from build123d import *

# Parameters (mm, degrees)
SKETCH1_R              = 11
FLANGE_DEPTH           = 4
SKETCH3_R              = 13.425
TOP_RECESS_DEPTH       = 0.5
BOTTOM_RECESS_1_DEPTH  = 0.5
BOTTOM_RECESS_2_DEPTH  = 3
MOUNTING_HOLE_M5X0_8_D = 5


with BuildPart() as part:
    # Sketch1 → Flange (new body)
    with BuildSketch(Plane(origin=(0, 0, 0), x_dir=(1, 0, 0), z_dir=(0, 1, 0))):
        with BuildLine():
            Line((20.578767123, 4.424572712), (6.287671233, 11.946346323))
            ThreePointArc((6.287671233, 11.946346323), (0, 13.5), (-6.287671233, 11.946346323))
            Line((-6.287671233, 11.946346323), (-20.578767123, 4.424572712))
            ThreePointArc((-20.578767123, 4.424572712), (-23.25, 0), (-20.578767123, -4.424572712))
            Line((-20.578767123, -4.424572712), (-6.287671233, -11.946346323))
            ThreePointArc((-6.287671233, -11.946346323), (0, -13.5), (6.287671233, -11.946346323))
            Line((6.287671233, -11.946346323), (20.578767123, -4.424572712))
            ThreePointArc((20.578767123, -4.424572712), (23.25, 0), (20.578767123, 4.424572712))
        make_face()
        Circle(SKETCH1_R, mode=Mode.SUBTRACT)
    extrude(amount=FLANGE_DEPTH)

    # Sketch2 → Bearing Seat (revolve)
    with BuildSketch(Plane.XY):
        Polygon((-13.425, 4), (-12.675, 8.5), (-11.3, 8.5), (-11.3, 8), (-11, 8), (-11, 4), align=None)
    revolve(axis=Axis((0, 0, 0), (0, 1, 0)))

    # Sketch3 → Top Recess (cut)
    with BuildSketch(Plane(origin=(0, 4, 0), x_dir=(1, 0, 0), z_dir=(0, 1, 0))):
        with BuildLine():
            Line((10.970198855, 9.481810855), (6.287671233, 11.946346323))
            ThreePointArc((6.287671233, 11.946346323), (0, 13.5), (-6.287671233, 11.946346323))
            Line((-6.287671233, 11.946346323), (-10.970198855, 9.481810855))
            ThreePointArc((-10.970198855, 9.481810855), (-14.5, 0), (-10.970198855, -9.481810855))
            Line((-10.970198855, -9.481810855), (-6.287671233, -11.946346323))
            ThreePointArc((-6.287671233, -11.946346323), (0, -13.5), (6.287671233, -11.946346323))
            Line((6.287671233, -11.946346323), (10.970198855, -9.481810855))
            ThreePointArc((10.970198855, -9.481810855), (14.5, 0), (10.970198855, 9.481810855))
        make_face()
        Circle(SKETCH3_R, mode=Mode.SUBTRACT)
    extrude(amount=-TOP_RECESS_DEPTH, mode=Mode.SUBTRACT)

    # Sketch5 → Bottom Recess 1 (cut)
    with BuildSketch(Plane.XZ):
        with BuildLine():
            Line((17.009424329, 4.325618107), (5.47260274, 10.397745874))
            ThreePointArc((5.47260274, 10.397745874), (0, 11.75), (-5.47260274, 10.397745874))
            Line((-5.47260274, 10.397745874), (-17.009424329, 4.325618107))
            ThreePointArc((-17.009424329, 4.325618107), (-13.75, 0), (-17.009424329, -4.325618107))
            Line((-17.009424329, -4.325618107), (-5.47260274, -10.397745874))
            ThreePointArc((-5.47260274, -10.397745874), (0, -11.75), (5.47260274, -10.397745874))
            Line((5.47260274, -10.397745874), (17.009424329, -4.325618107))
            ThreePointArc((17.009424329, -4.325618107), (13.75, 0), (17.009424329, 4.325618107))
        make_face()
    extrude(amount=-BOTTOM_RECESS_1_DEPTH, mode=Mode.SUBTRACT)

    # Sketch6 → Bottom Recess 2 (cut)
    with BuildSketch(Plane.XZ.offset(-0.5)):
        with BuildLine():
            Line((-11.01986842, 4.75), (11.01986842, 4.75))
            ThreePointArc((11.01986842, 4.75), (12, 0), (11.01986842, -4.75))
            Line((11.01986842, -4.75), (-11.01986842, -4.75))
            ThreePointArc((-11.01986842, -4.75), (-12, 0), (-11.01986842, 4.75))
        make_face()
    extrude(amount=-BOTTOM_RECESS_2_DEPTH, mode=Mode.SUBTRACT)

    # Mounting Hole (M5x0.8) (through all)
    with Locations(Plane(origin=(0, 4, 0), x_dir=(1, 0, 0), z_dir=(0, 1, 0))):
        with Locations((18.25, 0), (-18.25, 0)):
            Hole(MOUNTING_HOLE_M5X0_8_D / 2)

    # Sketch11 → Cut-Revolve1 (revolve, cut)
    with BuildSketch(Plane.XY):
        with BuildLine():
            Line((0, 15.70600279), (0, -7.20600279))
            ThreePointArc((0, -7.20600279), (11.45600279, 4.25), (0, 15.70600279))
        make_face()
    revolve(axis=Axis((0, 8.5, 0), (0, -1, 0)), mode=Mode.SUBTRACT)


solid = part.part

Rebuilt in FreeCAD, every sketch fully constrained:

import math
import FreeCAD as App
import Part
import Sketcher

V = App.Vector

doc = App.newDocument("Part")
body = doc.addObject("PartDesign::Body", "Body")

# Sketch on XZ plane
sketch1 = body.newObject("Sketcher::SketchObject", "Sketch")
sketch1.AttachmentSupport = (doc.getObject("XZ_Plane"), [""])
sketch1.MapMode = "FlatFace"
sketch1.addGeometry(Part.LineSegment(V(20.6, -4.4, 0), V(6.3, -11.9, 0)), False)
sketch1.addGeometry(Part.ArcOfCircle(Part.Circle(V(0, 0, 0), V(0, 0, 1), 13.5), math.radians(-118), math.radians(-62)), False)
sketch1.addGeometry(Part.LineSegment(V(-6.3, -11.9, 0), V(-20.6, -4.4, 0)), False)
sketch1.addGeometry(Part.ArcOfCircle(Part.Circle(V(-18.3, 0, 0), V(0, 0, 1), 5), math.radians(118), math.radians(242)), False)
sketch1.addGeometry(Part.LineSegment(V(-20.6, 4.4, 0), V(-6.3, 11.9, 0)), False)
sketch1.addGeometry(Part.ArcOfCircle(Part.Circle(V(0, 0, 0), V(0, 0, 1), 13.5), math.radians(62), math.radians(118)), False)
sketch1.addGeometry(Part.LineSegment(V(6.3, 11.9, 0), V(20.6, 4.4, 0)), False)
sketch1.addGeometry(Part.ArcOfCircle(Part.Circle(V(18.3, 0, 0), V(0, 0, 1), 5), math.radians(-62), math.radians(62)), False)
sketch1.addGeometry(Part.Circle(V(0, 0, 0), V(0, 0, 1), 11), False)
sketch1.addConstraint(Sketcher.Constraint("Tangent", 0, 2, 1, 2))
sketch1.addConstraint(Sketcher.Constraint("Tangent", 1, 1, 2, 1))
sketch1.addConstraint(Sketcher.Constraint("Tangent", 2, 2, 3, 2))
sketch1.addConstraint(Sketcher.Constraint("Tangent", 3, 1, 4, 1))
sketch1.addConstraint(Sketcher.Constraint("Tangent", 4, 2, 5, 2))
sketch1.addConstraint(Sketcher.Constraint("Tangent", 5, 1, 6, 1))
sketch1.addConstraint(Sketcher.Constraint("Tangent", 6, 2, 7, 2))
sketch1.addConstraint(Sketcher.Constraint("Tangent", 7, 1, 0, 1))
sketch1.addConstraint(Sketcher.Constraint("Coincident", 1, 3, -1, 1))
sketch1.addConstraint(Sketcher.Constraint("Coincident", 5, 3, -1, 1))
sketch1.addConstraint(Sketcher.Constraint("Coincident", 8, 3, -1, 1))
sketch1.addConstraint(Sketcher.Constraint("Equal", 1, 5))
sketch1.addConstraint(Sketcher.Constraint("Equal", 3, 7))
sketch1.addConstraint(Sketcher.Constraint("Symmetric", 3, 3, 7, 3, -1, 1))
sketch1.addConstraint(Sketcher.Constraint("PointOnObject", 3, 3, -1))
sketch1.addConstraint(Sketcher.Constraint("Diameter", 8, 22.0))
sketch1.addConstraint(Sketcher.Constraint("Radius", 3, 5.0))
sketch1.addConstraint(Sketcher.Constraint("Radius", 1, 13.5))
sketch1.addConstraint(Sketcher.Constraint("DistanceX", 3, 3, 7, 3, 36.5))
pad1 = body.newObject("PartDesign::Pad", "Pad")
pad1.Profile = sketch1
pad1.Length = 4
pad1.Reversed = True

# Sketch on XY plane
sketch2 = body.newObject("Sketcher::SketchObject", "Sketch001")
sketch2.AttachmentSupport = (doc.getObject("XY_Plane"), [""])
sketch2.MapMode = "FlatFace"
sketch2.addGeometry(Part.LineSegment(V(-12.68, 8.5, 0), V(-13.43, 4, 0)), False)
sketch2.addGeometry(Part.LineSegment(V(-13.43, 4, 0), V(-11, 4, 0)), False)
sketch2.addGeometry(Part.LineSegment(V(-11, 4, 0), V(-11, 8, 0)), False)
sketch2.addGeometry(Part.LineSegment(V(-11, 8, 0), V(-11.3, 8, 0)), False)
sketch2.addGeometry(Part.LineSegment(V(-11.3, 8, 0), V(-11.3, 8.5, 0)), False)
sketch2.addGeometry(Part.LineSegment(V(-11.3, 8.5, 0), V(-12.68, 8.5, 0)), False)
sketch2.addConstraint(Sketcher.Constraint("Coincident", 0, 2, 1, 1))
sketch2.addConstraint(Sketcher.Constraint("Coincident", 1, 2, 2, 1))
sketch2.addConstraint(Sketcher.Constraint("Coincident", 2, 2, 3, 1))
sketch2.addConstraint(Sketcher.Constraint("Coincident", 3, 2, 4, 1))
sketch2.addConstraint(Sketcher.Constraint("Coincident", 4, 2, 5, 1))
sketch2.addConstraint(Sketcher.Constraint("Coincident", 5, 2, 0, 1))
sketch2.addConstraint(Sketcher.Constraint("Horizontal", 1))
sketch2.addConstraint(Sketcher.Constraint("Vertical", 2))
sketch2.addConstraint(Sketcher.Constraint("Horizontal", 3))
sketch2.addConstraint(Sketcher.Constraint("Vertical", 4))
sketch2.addConstraint(Sketcher.Constraint("Horizontal", 5))
sketch2.addConstraint(Sketcher.Constraint("DistanceY", 2, 1, 2, 2, 4.0))
sketch2.addConstraint(Sketcher.Constraint("DistanceX", 3, 2, 3, 1, 0.3))
sketch2.addConstraint(Sketcher.Constraint("DistanceY", 4, 1, 4, 2, 0.5))
sketch2.addConstraint(Sketcher.Constraint("DistanceY", -1, 1, 0, 2, 4.0))
sketch2.addConstraint(Sketcher.Constraint("DistanceX", 1, 2, -1, 1, 11.0))
sketch2.addConstraint(Sketcher.Constraint("DistanceX", 1, 1, 1, 2, 2.425))
sketch2.addConstraint(Sketcher.Constraint("DistanceX", 5, 2, 5, 1, 1.375))
revolution = body.newObject("PartDesign::Revolution", "Revolution")
revolution.Profile = sketch2
revolution.ReferenceAxis = (sketch2, ["V_Axis"])
revolution.Angle = 360

# Sketch on XZ plane
sketch3 = body.newObject("Sketcher::SketchObject", "Sketch002")
sketch3.AttachmentSupport = (doc.getObject("XZ_Plane"), [""])
sketch3.MapMode = "FlatFace"
sketch3.AttachmentOffset = App.Placement(V(0, 0, -4), App.Rotation())
sketch3.addGeometry(Part.LineSegment(V(11, -9, 0), V(6, -12, 0)), False)
sketch3.addGeometry(Part.ArcOfCircle(Part.Circle(V(0, 0, 0), V(0, 0, 1), 14), math.radians(-118), math.radians(-62)), False)
sketch3.addGeometry(Part.LineSegment(V(-6, -12, 0), V(-11, -9, 0)), False)
sketch3.addGeometry(Part.ArcOfCircle(Part.Circle(V(0, 0, 0), V(0, 0, 1), 15), math.radians(139), math.radians(221)), False)
sketch3.addGeometry(Part.LineSegment(V(-11, 9, 0), V(-6, 12, 0)), False)
sketch3.addGeometry(Part.ArcOfCircle(Part.Circle(V(0, 0, 0), V(0, 0, 1), 14), math.radians(62), math.radians(118)), False)
sketch3.addGeometry(Part.LineSegment(V(6, 12, 0), V(11, 9, 0)), False)
sketch3.addGeometry(Part.ArcOfCircle(Part.Circle(V(0, 0, 0), V(0, 0, 1), 15), math.radians(-41), math.radians(41)), False)
sketch3.addGeometry(Part.Circle(V(0, 0, 0), V(0, 0, 1), 13), False)
sketch3.addConstraint(Sketcher.Constraint("Tangent", 0, 2, 1, 2))
sketch3.addConstraint(Sketcher.Constraint("Tangent", 1, 1, 2, 1))
sketch3.addConstraint(Sketcher.Constraint("Coincident", 2, 2, 3, 2))
sketch3.addConstraint(Sketcher.Constraint("Coincident", 3, 1, 4, 1))
sketch3.addConstraint(Sketcher.Constraint("Tangent", 4, 2, 5, 2))
sketch3.addConstraint(Sketcher.Constraint("Tangent", 5, 1, 6, 1))
sketch3.addConstraint(Sketcher.Constraint("Coincident", 6, 2, 7, 2))
sketch3.addConstraint(Sketcher.Constraint("Coincident", 7, 1, 0, 1))
sketch3.addConstraint(Sketcher.Constraint("Coincident", 1, 3, -1, 1))
sketch3.addConstraint(Sketcher.Constraint("Coincident", 3, 3, -1, 1))
sketch3.addConstraint(Sketcher.Constraint("Coincident", 5, 3, -1, 1))
sketch3.addConstraint(Sketcher.Constraint("Coincident", 7, 3, -1, 1))
sketch3.addConstraint(Sketcher.Constraint("Coincident", 8, 3, -1, 1))
sketch3.addConstraint(Sketcher.Constraint("Equal", 1, 5))
sketch3.addConstraint(Sketcher.Constraint("Equal", 3, 7))
sketch3.addConstraint(Sketcher.Constraint("Parallel", 0, 4))
sketch3.addConstraint(Sketcher.Constraint("Parallel", 2, 6))
sketch3.addConstraint(Sketcher.Constraint("Horizontal", 0, 2, 1, 1))
sketch3.addConstraint(Sketcher.Constraint("Radius", 1, 13.5))
sketch3.addConstraint(Sketcher.Constraint("Radius", 3, 14.5))
sketch3.addConstraint(Sketcher.Constraint("Diameter", 8, 26.85))
sketch3.addConstraint(Sketcher.Constraint("DistanceX", 2, 2, -1, 1, 10.970199))
pocket1 = body.newObject("PartDesign::Pocket", "Pocket")
pocket1.Profile = sketch3
pocket1.Length = 0.5
pocket1.Reversed = True

# Sketch on XZ plane
sketch4 = body.newObject("Sketcher::SketchObject", "Sketch003")
sketch4.AttachmentSupport = (doc.getObject("XZ_Plane"), [""])
sketch4.MapMode = "FlatFace"
sketch4.addGeometry(Part.LineSegment(V(17, 4.3, 0), V(5.5, 10.4, 0)), False)
sketch4.addGeometry(Part.ArcOfCircle(Part.Circle(V(0, 0, 0), V(0, 0, 1), 11.8), math.radians(62), math.radians(118)), False)
sketch4.addGeometry(Part.LineSegment(V(-5.5, 10.4, 0), V(-17, 4.3, 0)), False)
sketch4.addGeometry(Part.ArcOfCircle(Part.Circle(V(-18.2, 0, 0), V(0, 0, 1), 4.5), math.radians(-74), math.radians(74)), False)
sketch4.addGeometry(Part.LineSegment(V(-17, -4.3, 0), V(-5.5, -10.4, 0)), False)
sketch4.addGeometry(Part.ArcOfCircle(Part.Circle(V(0, 0, 0), V(0, 0, 1), 11.8), math.radians(-118), math.radians(-62)), False)
sketch4.addGeometry(Part.LineSegment(V(5.5, -10.4, 0), V(17, -4.3, 0)), False)
sketch4.addGeometry(Part.ArcOfCircle(Part.Circle(V(18.2, 0, 0), V(0, 0, 1), 4.5), math.radians(106), math.radians(254)), False)
sketch4.addConstraint(Sketcher.Constraint("Tangent", 0, 2, 1, 1))
sketch4.addConstraint(Sketcher.Constraint("Tangent", 1, 2, 2, 1))
sketch4.addConstraint(Sketcher.Constraint("Coincident", 2, 2, 3, 2))
sketch4.addConstraint(Sketcher.Constraint("Coincident", 3, 1, 4, 1))
sketch4.addConstraint(Sketcher.Constraint("Tangent", 4, 2, 5, 1))
sketch4.addConstraint(Sketcher.Constraint("Tangent", 5, 2, 6, 1))
sketch4.addConstraint(Sketcher.Constraint("Coincident", 6, 2, 7, 2))
sketch4.addConstraint(Sketcher.Constraint("Coincident", 7, 1, 0, 1))
sketch4.addConstraint(Sketcher.Constraint("Coincident", 1, 3, -1, 1))
sketch4.addConstraint(Sketcher.Constraint("Coincident", 5, 3, -1, 1))
sketch4.addConstraint(Sketcher.Constraint("Equal", 1, 5))
sketch4.addConstraint(Sketcher.Constraint("Equal", 3, 7))
sketch4.addConstraint(Sketcher.Constraint("Symmetric", 3, 3, 7, 3, -1, 1))
sketch4.addConstraint(Sketcher.Constraint("Symmetric", 3, 1, 6, 2, -2))
sketch4.addConstraint(Sketcher.Constraint("Parallel", 0, 4))
sketch4.addConstraint(Sketcher.Constraint("Parallel", 2, 6))
sketch4.addConstraint(Sketcher.Constraint("Radius", 3, 4.5))
sketch4.addConstraint(Sketcher.Constraint("Radius", 1, 11.75))
sketch4.addConstraint(Sketcher.Constraint("DistanceX", 3, 3, 7, 3, 36.5))
sketch4.addConstraint(Sketcher.Constraint("DistanceY", -1, 1, 2, 2, 4.325618))
pocket2 = body.newObject("PartDesign::Pocket", "Pocket001")
pocket2.Profile = sketch4
pocket2.Length = 0.5

# Sketch on XZ plane
sketch5 = body.newObject("Sketcher::SketchObject", "Sketch004")
sketch5.AttachmentSupport = (doc.getObject("XZ_Plane"), [""])
sketch5.MapMode = "FlatFace"
sketch5.AttachmentOffset = App.Placement(V(0, 0, -0.5), App.Rotation())
sketch5.addGeometry(Part.LineSegment(V(11, 5, 0), V(-11, 5, 0)), False)
sketch5.addGeometry(Part.ArcOfCircle(Part.Circle(V(0, 0, 0), V(0, 0, 1), 12), math.radians(157), math.radians(203)), False)
sketch5.addGeometry(Part.LineSegment(V(-11, -5, 0), V(11, -5, 0)), False)
sketch5.addGeometry(Part.ArcOfCircle(Part.Circle(V(0, 0, 0), V(0, 0, 1), 12), math.radians(-23), math.radians(23)), False)
sketch5.addConstraint(Sketcher.Constraint("Coincident", 0, 2, 1, 1))
sketch5.addConstraint(Sketcher.Constraint("Coincident", 1, 2, 2, 1))
sketch5.addConstraint(Sketcher.Constraint("Coincident", 2, 2, 3, 1))
sketch5.addConstraint(Sketcher.Constraint("Coincident", 3, 2, 0, 1))
sketch5.addConstraint(Sketcher.Constraint("Horizontal", 0))
sketch5.addConstraint(Sketcher.Constraint("Horizontal", 2))
sketch5.addConstraint(Sketcher.Constraint("Coincident", 1, 3, -1, 1))
sketch5.addConstraint(Sketcher.Constraint("Coincident", 3, 3, -1, 1))
sketch5.addConstraint(Sketcher.Constraint("Equal", 1, 3))
sketch5.addConstraint(Sketcher.Constraint("Vertical", 0, 2, 1, 2))
sketch5.addConstraint(Sketcher.Constraint("Radius", 1, 12.0))
sketch5.addConstraint(Sketcher.Constraint("DistanceY", 1, 2, 0, 2, 9.5))
pocket3 = body.newObject("PartDesign::Pocket", "Pocket002")
pocket3.Profile = sketch5
pocket3.Length = 3

# Sketch on XZ plane
sketch6 = body.newObject("Sketcher::SketchObject", "Sketch005")
sketch6.AttachmentSupport = (doc.getObject("XZ_Plane"), [""])
sketch6.MapMode = "FlatFace"
sketch6.AttachmentOffset = App.Placement(V(0, 0, -4), App.Rotation())
sketch6.addGeometry(Part.Circle(V(18.2, 0, 0), V(0, 0, 1), 2.5), False)
sketch6.addGeometry(Part.Circle(V(-18.2, 0, 0), V(0, 0, 1), 2.5), False)
sketch6.addConstraint(Sketcher.Constraint("Equal", 0, 1))
sketch6.addConstraint(Sketcher.Constraint("Symmetric", 0, 3, 1, 3, -1, 1))
sketch6.addConstraint(Sketcher.Constraint("PointOnObject", 0, 3, -1))
sketch6.addConstraint(Sketcher.Constraint("Diameter", 0, 5.0))
sketch6.addConstraint(Sketcher.Constraint("DistanceX", 1, 3, 0, 3, 36.5))
doc.recompute()
hole = body.newObject("PartDesign::Hole", "Hole")
hole.Profile = sketch6
hole.ThreadType = "None"
hole.Diameter = 5
hole.DepthType = "ThroughAll"
hole.Reversed = True

# Sketch on XY plane
sketch7 = body.newObject("Sketcher::SketchObject", "Sketch006")
sketch7.AttachmentSupport = (doc.getObject("XY_Plane"), [""])
sketch7.MapMode = "FlatFace"
sketch7.addGeometry(Part.LineSegment(V(0, 16, 0), V(0, -7, 0)), False)
sketch7.addGeometry(Part.ArcOfCircle(Part.Circle(V(0, 4, 0), V(0, 0, 1), 11), math.radians(-90), math.radians(90)), False)
sketch7.addConstraint(Sketcher.Constraint("Coincident", 0, 1, 1, 2))
sketch7.addConstraint(Sketcher.Constraint("Coincident", 1, 1, 0, 2))
sketch7.addConstraint(Sketcher.Constraint("Vertical", 0))
sketch7.addConstraint(Sketcher.Constraint("PointOnObject", 1, 3, -2))
sketch7.addConstraint(Sketcher.Constraint("PointOnObject", 0, 1, -2))
sketch7.addConstraint(Sketcher.Constraint("DistanceY", -1, 1, 1, 3, 4.25))
sketch7.addConstraint(Sketcher.Constraint("Radius", 1, 11.456003))
groove = body.newObject("PartDesign::Groove", "Groove")
groove.Profile = sketch7
groove.ReferenceAxis = (sketch7, ["V_Axis"])
groove.Angle = 360

doc.recompute()
